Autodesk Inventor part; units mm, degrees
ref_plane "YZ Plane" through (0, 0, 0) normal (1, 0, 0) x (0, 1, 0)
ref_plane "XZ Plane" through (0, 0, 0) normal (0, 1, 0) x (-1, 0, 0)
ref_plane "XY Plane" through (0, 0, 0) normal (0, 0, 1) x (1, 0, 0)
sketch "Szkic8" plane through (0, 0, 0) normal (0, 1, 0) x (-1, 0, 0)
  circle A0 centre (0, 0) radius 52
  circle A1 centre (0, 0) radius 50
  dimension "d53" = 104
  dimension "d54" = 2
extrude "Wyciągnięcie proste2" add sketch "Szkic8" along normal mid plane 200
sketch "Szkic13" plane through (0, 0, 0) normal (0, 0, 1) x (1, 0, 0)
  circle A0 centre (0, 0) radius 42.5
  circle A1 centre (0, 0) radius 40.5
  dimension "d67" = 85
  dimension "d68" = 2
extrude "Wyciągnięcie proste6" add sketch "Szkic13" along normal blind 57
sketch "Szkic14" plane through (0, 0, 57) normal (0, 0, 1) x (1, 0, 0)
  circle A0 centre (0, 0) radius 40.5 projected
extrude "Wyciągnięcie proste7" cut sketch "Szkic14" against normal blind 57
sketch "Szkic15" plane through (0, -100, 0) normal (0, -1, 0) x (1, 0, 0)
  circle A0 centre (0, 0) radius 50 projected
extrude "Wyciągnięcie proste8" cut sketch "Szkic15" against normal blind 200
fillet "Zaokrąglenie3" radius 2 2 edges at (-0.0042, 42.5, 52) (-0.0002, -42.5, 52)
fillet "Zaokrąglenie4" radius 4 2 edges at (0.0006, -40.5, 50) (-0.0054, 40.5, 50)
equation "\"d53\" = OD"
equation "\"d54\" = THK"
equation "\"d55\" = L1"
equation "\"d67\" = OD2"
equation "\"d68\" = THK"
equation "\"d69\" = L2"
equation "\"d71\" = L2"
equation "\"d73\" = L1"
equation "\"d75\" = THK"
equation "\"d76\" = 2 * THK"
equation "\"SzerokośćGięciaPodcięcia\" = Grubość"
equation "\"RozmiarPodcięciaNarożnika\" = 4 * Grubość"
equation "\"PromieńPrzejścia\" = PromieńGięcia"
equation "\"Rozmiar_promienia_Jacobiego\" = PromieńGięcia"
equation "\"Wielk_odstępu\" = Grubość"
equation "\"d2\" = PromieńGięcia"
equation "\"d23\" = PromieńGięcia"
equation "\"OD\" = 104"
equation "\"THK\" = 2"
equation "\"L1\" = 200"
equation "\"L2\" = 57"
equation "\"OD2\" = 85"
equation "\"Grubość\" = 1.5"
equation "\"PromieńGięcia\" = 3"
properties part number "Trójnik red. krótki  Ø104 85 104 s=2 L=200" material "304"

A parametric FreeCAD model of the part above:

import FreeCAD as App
import Part
import Sketcher

V = App.Vector
Q = App.Units.Quantity


def edges_at(feature, points):
    """Names of the edges that pass closest to the given points."""
    edges = feature.Shape.Edges
    near = lambda p: min(range(len(edges)), key=lambda i: edges[i].distToShape(Part.Vertex(*p))[0])
    return sorted({f"Edge{near(p) + 1}" for p in points})

doc = App.newDocument("Part")
body = doc.addObject("PartDesign::Body", "Body")

# Sketch on XZ plane
sketch1 = body.newObject("Sketcher::SketchObject", "Sketch")
sketch1.AttachmentSupport = (doc.getObject("XZ_Plane"), [""])
sketch1.MapMode = "FlatFace"
sketch1.addGeometry([
    Part.Circle(V(0, 0, 0), V(0, 0, 1), 52),
    Part.Circle(V(0, 0, 0), V(0, 0, 1), 50),
], False)
sketch1.addConstraint([
    Sketcher.Constraint("Coincident", 0, 3, -1, 1),
    Sketcher.Constraint("Coincident", 1, 3, -1, 1),
    Sketcher.Constraint("Diameter", 0, Q("104 mm")),
    Sketcher.Constraint("Diameter", 1, Q("100 mm")),
])
pad1 = body.newObject("PartDesign::Pad", "Pad")
pad1.Profile = sketch1
pad1.Length = 200
pad1.Midplane = True

# Sketch on XY plane
sketch2 = body.newObject("Sketcher::SketchObject", "Sketch001")
sketch2.AttachmentSupport = (doc.getObject("XY_Plane"), [""])
sketch2.MapMode = "FlatFace"
sketch2.addGeometry([
    Part.Circle(V(0, 0, 0), V(0, 0, 1), 42),
    Part.Circle(V(0, 0, 0), V(0, 0, 1), 40),
], False)
sketch2.addConstraint([
    Sketcher.Constraint("Coincident", 0, 3, -1, 1),
    Sketcher.Constraint("Coincident", 1, 3, -1, 1),
    Sketcher.Constraint("Diameter", 0, Q("85 mm")),
    Sketcher.Constraint("Diameter", 1, Q("81 mm")),
])
pad2 = body.newObject("PartDesign::Pad", "Pad001")
pad2.Profile = sketch2
pad2.Length = 57

# Sketch on XY plane
sketch3 = body.newObject("Sketcher::SketchObject", "Sketch002")
sketch3.AttachmentSupport = (doc.getObject("XY_Plane"), [""])
sketch3.MapMode = "FlatFace"
sketch3.AttachmentOffset = App.Placement(V(0, 0, 57), App.Rotation())
sketch3.addGeometry(Part.Circle(V(0, 0, 0), V(0, 0, 1), 40), False)
sketch3.addConstraint([
    Sketcher.Constraint("Coincident", 0, 3, -1, 1),
    Sketcher.Constraint("Diameter", 0, Q("81 mm")),
])
pocket1 = body.newObject("PartDesign::Pocket", "Pocket")
pocket1.Profile = sketch3
pocket1.Length = 57

# Sketch on XZ plane
sketch4 = body.newObject("Sketcher::SketchObject", "Sketch003")
sketch4.AttachmentSupport = (doc.getObject("XZ_Plane"), [""])
sketch4.MapMode = "FlatFace"
sketch4.AttachmentOffset = App.Placement(V(0, 0, 100), App.Rotation())
sketch4.addGeometry(Part.Circle(V(0, 0, 0), V(0, 0, 1), 50), False)
sketch4.addConstraint([
    Sketcher.Constraint("Coincident", 0, 3, -1, 1),
    Sketcher.Constraint("Diameter", 0, Q("100 mm")),
])
pocket2 = body.newObject("PartDesign::Pocket", "Pocket001")
pocket2.Profile = sketch4
pocket2.Length = 200
doc.recompute()

fillet = body.newObject("PartDesign::Fillet", "Fillet")
fillet.Base = (pocket2, edges_at(pocket2, [(-0.004, 42.5, 52), (0, -42.5, 52)]))
fillet.Radius = 2
doc.recompute()

fillet2 = body.newObject("PartDesign::Fillet", "Fillet001")
fillet2.Base = (fillet, edges_at(fillet, [(0.001, -40.5, 50), (-0.005, 40.5, 50)]))
fillet2.Radius = 4

doc.recompute()
